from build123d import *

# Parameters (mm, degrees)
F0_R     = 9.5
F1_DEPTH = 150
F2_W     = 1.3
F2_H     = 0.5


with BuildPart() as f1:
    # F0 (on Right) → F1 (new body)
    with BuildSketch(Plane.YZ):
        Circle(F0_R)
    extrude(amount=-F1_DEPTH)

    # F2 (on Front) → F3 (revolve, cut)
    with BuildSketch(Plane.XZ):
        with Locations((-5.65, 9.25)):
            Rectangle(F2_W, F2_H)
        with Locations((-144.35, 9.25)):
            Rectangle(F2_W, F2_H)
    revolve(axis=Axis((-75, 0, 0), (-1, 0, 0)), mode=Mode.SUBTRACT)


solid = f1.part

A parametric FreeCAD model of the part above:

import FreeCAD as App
import Part
import Sketcher

V = App.Vector


def add_polygon(sketch, points):
    """Adds a closed chain of lines whose ends are joined by coincident constraints."""
    first, n = sketch.GeometryCount, len(points)
    for a, b in zip(points, points[1:] + points[:1]):
        sketch.addGeometry(Part.LineSegment(App.Vector(*a, 0), App.Vector(*b, 0)), False)
    for i in range(n):
        sketch.addConstraint(Sketcher.Constraint("Coincident", first + i, 2, first + (i + 1) % n, 1))

doc = App.newDocument("Part")
params = doc.addObject("Spreadsheet::Sheet", "Params")
for row, (alias, value) in enumerate([
    ("sketch1_diameter", "19 mm"),
    ("pad1_length", "150 mm"),
    ("sketch2_width", "1.3 mm"),
    ("sketch2_height", "0.5 mm"),
    ("groove_angle", "360 deg"),
], start=1):
    params.set(f"A{row}", alias)
    params.set(f"B{row}", "=" + value)
    params.setAlias(f"B{row}", alias)

body = doc.addObject("PartDesign::Body", "Body")

# Sketch on YZ plane
sketch1 = body.newObject("Sketcher::SketchObject", "Sketch")
sketch1.AttachmentSupport = (doc.getObject("YZ_Plane"), [""])
sketch1.MapMode = "FlatFace"
sketch1.addGeometry(Part.Circle(V(0, 0, 0), V(0, 0, 1), 10), False)
sketch1.addConstraint([
    Sketcher.Constraint("Coincident", 0, 3, -1, 1),
    Sketcher.Constraint("Diameter", 0, 19.0),
])
sketch1.setExpression("Constraints[1]", "Params.sketch1_diameter")
pad1 = body.newObject("PartDesign::Pad", "Pad")
pad1.Profile = sketch1
pad1.setExpression("Length", "Params.pad1_length")
pad1.Reversed = True

# Sketch on XZ plane
sketch2 = body.newObject("Sketcher::SketchObject", "Sketch001")
sketch2.AttachmentSupport = (doc.getObject("XZ_Plane"), [""])
sketch2.MapMode = "FlatFace"
add_polygon(sketch2, [(-6.3, 9.5), (-6.3, 9), (-5, 9), (-5, 9.5)])  # lines 0-3
add_polygon(sketch2, [(-145, 9.5), (-145, 9), (-143.7, 9), (-143.7, 9.5)])  # lines 4-7
sketch2.addConstraint([
    Sketcher.Constraint("Vertical", 0),
    Sketcher.Constraint("Horizontal", 1),
    Sketcher.Constraint("Vertical", 2),
    Sketcher.Constraint("Horizontal", 3),
    Sketcher.Constraint("Vertical", 4),
    Sketcher.Constraint("Horizontal", 5),
    Sketcher.Constraint("Vertical", 6),
    Sketcher.Constraint("Horizontal", 7),
    Sketcher.Constraint("Horizontal", 1, 2, 4, 2),
    Sketcher.Constraint("Horizontal", 3, 2, 6, 2),
    Sketcher.Constraint("Equal", 3, 5),
    Sketcher.Constraint("DistanceX", 1, 1, 1, 2, 1.3),
    Sketcher.Constraint("DistanceY", 0, 2, 0, 1, 0.5),
    Sketcher.Constraint("DistanceY", -1, 1, 0, 2, 9.0),
    Sketcher.Constraint("DistanceX", 1, 2, -1, 1, 5.0),
    Sketcher.Constraint("DistanceX", 4, 2, -1, 1, 145.0),
])
sketch2.setExpression("Constraints[19]", "Params.sketch2_width")
sketch2.setExpression("Constraints[20]", "Params.sketch2_height")
groove = body.newObject("PartDesign::Groove", "Groove")
groove.Profile = sketch2
groove.ReferenceAxis = (sketch2, ["H_Axis"])
groove.setExpression("Angle", "Params.groove_angle")

doc.recompute()
